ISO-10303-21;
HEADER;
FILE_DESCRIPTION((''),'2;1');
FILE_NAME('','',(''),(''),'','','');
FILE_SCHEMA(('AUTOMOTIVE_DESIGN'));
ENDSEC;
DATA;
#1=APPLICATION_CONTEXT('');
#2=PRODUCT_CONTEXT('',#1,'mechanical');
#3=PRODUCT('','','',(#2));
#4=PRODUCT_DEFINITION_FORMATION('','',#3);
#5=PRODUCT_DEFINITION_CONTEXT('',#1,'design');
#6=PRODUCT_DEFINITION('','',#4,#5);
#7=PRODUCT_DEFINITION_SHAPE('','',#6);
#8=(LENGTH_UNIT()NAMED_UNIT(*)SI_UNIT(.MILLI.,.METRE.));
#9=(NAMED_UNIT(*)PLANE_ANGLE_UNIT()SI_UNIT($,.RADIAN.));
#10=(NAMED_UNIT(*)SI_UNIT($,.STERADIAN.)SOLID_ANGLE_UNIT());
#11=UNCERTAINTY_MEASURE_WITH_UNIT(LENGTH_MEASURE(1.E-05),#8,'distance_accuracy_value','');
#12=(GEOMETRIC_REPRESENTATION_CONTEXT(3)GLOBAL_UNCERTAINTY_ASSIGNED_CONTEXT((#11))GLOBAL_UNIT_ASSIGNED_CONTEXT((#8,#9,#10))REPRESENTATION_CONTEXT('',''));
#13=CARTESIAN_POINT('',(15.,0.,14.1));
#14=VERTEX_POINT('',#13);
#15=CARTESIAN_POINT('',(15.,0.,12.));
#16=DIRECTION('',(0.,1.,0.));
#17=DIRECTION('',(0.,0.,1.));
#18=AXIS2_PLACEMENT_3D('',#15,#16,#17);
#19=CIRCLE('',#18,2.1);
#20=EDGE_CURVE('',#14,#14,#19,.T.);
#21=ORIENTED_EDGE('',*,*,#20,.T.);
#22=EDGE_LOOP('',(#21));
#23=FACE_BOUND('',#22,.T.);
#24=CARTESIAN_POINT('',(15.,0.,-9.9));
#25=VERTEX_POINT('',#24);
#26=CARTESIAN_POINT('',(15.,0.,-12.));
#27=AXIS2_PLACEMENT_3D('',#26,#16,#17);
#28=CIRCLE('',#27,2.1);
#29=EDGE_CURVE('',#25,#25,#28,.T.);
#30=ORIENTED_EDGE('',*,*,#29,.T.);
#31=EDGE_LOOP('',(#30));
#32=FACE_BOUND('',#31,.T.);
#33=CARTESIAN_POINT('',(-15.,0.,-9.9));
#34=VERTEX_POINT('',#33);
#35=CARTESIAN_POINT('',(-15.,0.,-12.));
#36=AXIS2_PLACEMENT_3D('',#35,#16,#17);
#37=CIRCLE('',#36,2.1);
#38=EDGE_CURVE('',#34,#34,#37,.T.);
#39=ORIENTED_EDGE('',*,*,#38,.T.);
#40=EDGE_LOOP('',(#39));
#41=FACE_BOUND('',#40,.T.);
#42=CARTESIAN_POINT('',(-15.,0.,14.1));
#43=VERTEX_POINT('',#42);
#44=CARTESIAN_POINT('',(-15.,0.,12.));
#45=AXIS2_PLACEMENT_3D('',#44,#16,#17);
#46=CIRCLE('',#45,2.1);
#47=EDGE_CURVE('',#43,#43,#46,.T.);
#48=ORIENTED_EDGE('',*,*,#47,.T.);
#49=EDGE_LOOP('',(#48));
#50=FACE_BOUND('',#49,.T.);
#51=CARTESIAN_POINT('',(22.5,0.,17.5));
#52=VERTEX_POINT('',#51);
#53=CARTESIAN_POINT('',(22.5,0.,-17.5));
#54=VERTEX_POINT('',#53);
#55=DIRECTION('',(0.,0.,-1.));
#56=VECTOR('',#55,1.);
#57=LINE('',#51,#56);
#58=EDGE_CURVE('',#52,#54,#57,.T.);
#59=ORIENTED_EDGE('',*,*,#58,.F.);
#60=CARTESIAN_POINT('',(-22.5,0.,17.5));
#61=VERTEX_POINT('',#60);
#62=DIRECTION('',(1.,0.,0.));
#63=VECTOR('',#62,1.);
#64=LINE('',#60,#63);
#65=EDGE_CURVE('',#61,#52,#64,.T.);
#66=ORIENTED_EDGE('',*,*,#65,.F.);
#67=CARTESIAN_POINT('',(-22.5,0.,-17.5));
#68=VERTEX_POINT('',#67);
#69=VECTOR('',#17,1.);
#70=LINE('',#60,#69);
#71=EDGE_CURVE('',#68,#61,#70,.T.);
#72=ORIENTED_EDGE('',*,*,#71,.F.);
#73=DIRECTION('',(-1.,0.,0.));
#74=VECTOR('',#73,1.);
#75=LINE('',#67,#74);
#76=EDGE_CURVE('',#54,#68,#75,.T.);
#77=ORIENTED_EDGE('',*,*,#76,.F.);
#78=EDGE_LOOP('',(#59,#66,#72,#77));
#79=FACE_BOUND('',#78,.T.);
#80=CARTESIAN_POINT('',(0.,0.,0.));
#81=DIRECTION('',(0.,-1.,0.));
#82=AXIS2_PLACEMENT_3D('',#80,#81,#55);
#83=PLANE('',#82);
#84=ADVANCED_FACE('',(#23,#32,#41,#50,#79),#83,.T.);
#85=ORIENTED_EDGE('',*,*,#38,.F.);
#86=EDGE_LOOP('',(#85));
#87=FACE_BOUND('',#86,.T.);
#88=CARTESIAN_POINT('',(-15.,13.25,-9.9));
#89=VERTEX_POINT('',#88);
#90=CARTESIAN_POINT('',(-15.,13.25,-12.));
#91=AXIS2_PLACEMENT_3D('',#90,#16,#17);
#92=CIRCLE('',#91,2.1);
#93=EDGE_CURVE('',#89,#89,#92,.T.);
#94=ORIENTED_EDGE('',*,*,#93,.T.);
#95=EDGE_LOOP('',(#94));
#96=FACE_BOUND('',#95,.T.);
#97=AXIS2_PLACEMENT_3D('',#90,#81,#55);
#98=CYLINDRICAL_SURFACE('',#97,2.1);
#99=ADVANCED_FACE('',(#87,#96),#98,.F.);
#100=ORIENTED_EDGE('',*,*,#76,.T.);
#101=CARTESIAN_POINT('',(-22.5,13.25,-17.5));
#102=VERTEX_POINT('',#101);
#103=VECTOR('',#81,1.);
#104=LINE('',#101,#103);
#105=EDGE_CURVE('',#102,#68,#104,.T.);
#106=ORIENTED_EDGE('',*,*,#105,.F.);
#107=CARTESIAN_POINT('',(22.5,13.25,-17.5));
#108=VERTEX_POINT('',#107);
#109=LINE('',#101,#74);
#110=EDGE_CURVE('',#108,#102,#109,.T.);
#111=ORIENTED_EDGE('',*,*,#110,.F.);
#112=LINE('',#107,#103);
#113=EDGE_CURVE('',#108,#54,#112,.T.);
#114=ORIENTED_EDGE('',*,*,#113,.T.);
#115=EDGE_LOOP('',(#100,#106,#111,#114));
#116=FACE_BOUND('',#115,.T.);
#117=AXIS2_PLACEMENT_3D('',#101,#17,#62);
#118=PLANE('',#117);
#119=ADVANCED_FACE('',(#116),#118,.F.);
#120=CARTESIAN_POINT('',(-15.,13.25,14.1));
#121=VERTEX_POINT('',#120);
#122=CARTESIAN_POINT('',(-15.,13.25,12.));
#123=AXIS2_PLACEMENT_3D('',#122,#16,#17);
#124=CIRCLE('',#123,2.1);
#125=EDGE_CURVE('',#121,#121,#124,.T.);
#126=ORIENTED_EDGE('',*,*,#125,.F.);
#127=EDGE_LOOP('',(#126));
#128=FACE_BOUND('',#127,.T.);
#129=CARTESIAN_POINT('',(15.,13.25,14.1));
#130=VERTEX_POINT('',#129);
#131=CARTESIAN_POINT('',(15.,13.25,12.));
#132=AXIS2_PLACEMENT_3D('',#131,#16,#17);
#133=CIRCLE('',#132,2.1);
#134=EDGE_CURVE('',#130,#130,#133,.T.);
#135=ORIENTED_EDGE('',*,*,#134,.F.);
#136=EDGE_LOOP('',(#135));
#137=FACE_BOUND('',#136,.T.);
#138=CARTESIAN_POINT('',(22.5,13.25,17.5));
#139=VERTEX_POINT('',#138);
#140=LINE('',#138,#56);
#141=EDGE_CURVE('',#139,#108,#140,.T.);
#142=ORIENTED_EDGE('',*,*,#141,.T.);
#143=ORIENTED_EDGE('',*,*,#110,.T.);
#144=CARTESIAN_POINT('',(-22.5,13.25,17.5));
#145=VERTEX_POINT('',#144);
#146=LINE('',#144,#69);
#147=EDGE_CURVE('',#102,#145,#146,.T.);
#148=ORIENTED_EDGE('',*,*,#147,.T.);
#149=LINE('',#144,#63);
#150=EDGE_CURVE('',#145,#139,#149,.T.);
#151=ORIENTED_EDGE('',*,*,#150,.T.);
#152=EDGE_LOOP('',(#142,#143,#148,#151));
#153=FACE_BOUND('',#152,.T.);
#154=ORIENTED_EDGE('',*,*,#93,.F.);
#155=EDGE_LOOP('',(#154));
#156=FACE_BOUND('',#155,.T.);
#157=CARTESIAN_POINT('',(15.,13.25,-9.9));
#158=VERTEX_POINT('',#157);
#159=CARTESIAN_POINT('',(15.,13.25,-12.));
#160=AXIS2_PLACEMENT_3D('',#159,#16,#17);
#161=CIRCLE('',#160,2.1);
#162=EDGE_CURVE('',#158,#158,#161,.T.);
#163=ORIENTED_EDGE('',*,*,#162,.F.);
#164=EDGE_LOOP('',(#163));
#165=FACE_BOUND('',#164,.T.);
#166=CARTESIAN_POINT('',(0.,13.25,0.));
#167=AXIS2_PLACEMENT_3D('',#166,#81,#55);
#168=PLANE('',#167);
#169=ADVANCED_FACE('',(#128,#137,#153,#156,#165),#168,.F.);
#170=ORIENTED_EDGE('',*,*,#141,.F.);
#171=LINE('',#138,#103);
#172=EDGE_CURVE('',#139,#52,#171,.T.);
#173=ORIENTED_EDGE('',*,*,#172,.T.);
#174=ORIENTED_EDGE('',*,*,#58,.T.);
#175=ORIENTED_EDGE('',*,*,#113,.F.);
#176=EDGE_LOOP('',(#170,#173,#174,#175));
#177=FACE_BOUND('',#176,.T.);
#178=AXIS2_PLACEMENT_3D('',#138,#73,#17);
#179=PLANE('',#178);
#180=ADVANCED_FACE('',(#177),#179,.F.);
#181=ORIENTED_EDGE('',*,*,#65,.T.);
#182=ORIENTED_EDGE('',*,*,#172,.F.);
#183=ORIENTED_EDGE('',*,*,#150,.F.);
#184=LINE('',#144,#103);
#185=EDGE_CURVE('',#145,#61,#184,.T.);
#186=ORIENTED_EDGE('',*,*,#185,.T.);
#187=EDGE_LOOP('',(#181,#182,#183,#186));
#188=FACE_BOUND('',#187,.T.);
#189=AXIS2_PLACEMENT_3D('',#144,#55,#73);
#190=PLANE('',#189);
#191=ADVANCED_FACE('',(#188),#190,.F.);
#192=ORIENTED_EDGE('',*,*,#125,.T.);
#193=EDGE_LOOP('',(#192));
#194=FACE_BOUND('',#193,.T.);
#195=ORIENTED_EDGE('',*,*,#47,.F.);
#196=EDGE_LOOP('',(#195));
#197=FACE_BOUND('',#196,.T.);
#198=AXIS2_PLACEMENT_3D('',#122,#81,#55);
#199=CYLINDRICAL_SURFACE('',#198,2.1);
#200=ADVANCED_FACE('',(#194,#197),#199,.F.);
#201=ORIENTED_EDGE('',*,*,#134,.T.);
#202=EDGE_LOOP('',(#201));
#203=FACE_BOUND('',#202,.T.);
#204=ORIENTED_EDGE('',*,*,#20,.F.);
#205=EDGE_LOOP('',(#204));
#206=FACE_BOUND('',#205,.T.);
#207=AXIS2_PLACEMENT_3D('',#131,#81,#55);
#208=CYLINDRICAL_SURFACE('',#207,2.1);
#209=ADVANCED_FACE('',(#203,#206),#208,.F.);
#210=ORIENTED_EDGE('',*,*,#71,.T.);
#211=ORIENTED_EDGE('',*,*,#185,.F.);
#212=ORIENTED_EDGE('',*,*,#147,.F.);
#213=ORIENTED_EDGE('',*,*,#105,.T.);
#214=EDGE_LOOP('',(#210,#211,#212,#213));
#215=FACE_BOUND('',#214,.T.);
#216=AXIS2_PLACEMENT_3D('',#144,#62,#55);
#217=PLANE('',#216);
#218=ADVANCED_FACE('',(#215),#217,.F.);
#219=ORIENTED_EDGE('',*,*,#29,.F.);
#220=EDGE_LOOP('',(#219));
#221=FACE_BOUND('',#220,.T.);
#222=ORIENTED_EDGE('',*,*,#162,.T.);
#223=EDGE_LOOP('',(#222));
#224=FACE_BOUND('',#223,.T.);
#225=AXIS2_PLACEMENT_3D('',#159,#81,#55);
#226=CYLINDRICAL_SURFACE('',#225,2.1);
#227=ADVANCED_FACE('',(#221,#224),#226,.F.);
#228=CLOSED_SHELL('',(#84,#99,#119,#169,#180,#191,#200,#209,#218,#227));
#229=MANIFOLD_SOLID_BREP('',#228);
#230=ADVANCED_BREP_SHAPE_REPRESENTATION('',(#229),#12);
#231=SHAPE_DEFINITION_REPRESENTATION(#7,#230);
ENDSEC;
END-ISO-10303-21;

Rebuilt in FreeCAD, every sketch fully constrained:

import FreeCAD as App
import Part
import Sketcher


def add_polygon(sketch, points):
    """Adds a closed chain of lines whose ends are joined by coincident constraints."""
    first, n = sketch.GeometryCount, len(points)
    for a, b in zip(points, points[1:] + points[:1]):
        sketch.addGeometry(Part.LineSegment(App.Vector(*a, 0), App.Vector(*b, 0)), False)
    for i in range(n):
        sketch.addConstraint(Sketcher.Constraint("Coincident", first + i, 2, first + (i + 1) % n, 1))

doc = App.newDocument("Part")
body = doc.addObject("PartDesign::Body", "Body")

# Sketch on XZ plane
sketch1 = doc.addObject("Sketcher::SketchObject", "Sketch")
body.addObject(sketch1)
sketch1.AttachmentSupport = (doc.XZ_Plane, [""])
sketch1.MapMode = "FlatFace"
add_polygon(sketch1, [(-22.5, -17.5), (-22.5, 17.5), (22.5, 17.5), (22.5, -17.5)])  # lines 0-3
sketch1.addGeometry(Part.Circle(App.Vector(-15, 12, 0), App.Vector(0, 0, 1), 2.1), False)  # 4
sketch1.addGeometry(Part.Circle(App.Vector(15, 12, 0), App.Vector(0, 0, 1), 2.1), False)  # 5
sketch1.addGeometry(Part.Circle(App.Vector(-15, -12, 0), App.Vector(0, 0, 1), 2.1), False)  # 6
sketch1.addGeometry(Part.Circle(App.Vector(15, -12, 0), App.Vector(0, 0, 1), 2.1), False)  # 7
sketch1.addConstraint([
    Sketcher.Constraint("Vertical", 0),
    Sketcher.Constraint("Horizontal", 1),
    Sketcher.Constraint("Vertical", 2),
    Sketcher.Constraint("Horizontal", 3),
    Sketcher.Constraint("Equal", 4, 5),
    Sketcher.Constraint("Equal", 5, 6),
    Sketcher.Constraint("Equal", 6, 7),
    Sketcher.Constraint("Symmetric", 5, 3, 6, 3, -1, 1),
    Sketcher.Constraint("Symmetric", 4, 3, 7, 3, -1, 1),
    Sketcher.Constraint("Symmetric", 0, 2, 2, 2, -1, 1),
    Sketcher.Constraint("Symmetric", 4, 3, 5, 3, -2),
    Sketcher.Constraint("Diameter", 4, 4.2),
    Sketcher.Constraint("DistanceX", 1, 1, 1, 2, 45.0),
    Sketcher.Constraint("DistanceY", 0, 1, 0, 2, 35.0),
    Sketcher.Constraint("DistanceX", 4, 3, -1, 1, 15.0),
    Sketcher.Constraint("DistanceY", -1, 1, 4, 3, 12.0),
])
pad1 = doc.addObject("PartDesign::Pad", "Pad")
body.addObject(pad1)
pad1.Profile = sketch1
pad1.Length = 13.25
pad1.Reversed = True

doc.recompute()
